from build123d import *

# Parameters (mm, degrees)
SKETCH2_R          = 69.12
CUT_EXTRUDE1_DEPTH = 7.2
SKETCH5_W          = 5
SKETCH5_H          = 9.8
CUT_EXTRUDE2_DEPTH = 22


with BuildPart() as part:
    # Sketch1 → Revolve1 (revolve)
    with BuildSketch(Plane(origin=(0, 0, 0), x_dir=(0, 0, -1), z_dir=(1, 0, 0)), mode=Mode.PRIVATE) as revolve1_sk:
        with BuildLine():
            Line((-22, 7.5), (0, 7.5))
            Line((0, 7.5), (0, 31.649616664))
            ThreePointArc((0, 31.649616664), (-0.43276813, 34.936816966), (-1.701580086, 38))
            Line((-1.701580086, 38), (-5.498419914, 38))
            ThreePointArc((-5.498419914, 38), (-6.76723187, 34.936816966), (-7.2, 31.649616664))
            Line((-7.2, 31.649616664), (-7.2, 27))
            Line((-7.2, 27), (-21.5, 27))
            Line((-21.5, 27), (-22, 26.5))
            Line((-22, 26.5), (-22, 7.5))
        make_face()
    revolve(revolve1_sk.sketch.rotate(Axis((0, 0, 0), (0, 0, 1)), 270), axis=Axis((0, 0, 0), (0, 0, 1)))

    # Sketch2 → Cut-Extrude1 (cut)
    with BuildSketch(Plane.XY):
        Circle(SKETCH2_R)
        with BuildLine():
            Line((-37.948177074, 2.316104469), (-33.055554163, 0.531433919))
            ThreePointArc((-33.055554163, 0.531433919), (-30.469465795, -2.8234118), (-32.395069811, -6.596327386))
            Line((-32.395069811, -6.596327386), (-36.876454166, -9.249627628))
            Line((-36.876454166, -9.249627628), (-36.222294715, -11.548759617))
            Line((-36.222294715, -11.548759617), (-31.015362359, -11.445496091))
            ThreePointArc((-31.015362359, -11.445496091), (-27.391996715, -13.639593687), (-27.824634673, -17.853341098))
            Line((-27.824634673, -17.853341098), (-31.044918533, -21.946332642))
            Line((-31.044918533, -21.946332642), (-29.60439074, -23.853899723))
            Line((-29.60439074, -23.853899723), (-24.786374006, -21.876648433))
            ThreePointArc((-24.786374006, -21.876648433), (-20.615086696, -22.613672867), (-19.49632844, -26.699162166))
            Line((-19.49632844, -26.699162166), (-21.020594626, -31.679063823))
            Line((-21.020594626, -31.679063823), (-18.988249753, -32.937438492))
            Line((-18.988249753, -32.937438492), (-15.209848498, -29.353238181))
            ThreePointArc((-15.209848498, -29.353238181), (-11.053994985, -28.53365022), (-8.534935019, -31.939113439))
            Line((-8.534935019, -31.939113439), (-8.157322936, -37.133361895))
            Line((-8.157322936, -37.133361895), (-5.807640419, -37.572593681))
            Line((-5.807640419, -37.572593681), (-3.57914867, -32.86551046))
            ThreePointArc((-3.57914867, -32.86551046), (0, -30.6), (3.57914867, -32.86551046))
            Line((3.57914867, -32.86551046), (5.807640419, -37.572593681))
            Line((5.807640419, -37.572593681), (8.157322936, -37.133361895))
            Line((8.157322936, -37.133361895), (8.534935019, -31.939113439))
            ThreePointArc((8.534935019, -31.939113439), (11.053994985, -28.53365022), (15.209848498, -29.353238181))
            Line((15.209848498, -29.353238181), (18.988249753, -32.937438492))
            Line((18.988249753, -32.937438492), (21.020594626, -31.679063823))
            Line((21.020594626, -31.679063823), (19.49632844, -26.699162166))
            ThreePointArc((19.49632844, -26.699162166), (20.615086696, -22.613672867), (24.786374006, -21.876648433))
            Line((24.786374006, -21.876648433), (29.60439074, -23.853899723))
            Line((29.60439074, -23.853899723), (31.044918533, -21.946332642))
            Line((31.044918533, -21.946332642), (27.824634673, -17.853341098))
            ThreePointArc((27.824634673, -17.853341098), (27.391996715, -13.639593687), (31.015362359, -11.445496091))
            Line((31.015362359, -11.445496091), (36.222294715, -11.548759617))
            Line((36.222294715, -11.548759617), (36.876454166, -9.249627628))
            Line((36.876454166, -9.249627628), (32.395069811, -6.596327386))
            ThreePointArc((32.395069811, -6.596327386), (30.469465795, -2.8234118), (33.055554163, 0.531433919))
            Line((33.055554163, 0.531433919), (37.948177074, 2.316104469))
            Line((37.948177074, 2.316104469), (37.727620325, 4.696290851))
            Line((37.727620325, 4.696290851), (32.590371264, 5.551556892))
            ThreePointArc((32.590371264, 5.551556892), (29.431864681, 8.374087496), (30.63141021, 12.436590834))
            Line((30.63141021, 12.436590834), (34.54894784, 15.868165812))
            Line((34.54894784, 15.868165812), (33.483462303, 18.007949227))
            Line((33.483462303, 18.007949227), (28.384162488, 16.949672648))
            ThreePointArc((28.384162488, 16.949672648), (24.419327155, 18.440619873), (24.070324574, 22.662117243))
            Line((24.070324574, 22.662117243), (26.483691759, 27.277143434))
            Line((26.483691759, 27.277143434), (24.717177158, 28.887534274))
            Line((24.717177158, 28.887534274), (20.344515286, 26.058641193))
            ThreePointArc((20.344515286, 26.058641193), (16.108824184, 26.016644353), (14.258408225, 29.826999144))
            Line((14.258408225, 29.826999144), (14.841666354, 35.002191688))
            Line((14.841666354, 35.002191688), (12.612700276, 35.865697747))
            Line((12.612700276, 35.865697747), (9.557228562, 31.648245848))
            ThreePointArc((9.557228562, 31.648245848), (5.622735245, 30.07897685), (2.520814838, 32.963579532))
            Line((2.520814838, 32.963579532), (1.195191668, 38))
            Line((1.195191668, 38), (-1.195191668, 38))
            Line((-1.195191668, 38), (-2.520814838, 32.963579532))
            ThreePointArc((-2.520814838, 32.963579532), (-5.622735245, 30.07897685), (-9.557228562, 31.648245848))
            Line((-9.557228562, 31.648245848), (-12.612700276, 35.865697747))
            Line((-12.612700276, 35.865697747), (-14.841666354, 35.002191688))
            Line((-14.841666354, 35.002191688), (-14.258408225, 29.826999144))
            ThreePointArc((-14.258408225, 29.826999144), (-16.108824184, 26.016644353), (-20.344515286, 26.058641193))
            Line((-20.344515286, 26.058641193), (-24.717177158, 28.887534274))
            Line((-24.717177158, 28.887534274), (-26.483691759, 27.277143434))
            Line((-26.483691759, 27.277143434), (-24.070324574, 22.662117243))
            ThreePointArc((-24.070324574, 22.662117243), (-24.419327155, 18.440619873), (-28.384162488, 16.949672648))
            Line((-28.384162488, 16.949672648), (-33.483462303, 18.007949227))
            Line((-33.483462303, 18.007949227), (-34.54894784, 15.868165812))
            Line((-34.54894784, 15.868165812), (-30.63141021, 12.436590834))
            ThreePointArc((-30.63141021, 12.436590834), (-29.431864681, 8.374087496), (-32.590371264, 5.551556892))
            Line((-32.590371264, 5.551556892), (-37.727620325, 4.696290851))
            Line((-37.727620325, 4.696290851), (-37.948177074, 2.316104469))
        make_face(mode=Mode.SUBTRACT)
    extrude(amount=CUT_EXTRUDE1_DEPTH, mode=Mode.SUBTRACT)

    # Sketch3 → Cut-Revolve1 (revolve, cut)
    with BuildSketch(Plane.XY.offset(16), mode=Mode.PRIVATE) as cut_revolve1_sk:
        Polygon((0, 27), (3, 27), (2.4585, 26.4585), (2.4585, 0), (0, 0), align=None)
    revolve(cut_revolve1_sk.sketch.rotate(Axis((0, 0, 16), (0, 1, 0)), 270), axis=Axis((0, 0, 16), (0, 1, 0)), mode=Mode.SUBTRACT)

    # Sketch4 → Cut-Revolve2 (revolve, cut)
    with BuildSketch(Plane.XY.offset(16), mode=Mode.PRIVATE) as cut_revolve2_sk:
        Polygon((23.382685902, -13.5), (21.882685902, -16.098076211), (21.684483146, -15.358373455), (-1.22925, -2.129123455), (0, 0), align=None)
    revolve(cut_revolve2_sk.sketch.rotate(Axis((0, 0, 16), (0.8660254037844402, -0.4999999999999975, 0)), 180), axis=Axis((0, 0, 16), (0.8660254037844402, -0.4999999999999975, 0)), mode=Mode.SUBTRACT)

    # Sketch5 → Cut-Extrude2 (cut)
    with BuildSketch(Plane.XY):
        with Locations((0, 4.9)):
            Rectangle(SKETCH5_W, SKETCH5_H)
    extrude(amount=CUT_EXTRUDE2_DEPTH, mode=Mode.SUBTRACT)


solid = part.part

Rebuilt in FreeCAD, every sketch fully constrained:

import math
import FreeCAD as App
import Part
import Sketcher
from FreeCAD import Vector
Q = App.Units.Quantity

doc = App.newDocument("Part")
params = doc.addObject("Spreadsheet::Sheet", "Params")
for row, (alias, value) in enumerate([
    ("sketch1_width", "19 mm"),
    ("sketch1_height", "22 mm"),
    ("sketch1_height2", "14.3 mm"),
    ("revolution_angle", "360 deg"),
    ("sketch2_diameter", "138.24 mm"),
    ("sketch2_radius", "3.96 mm"),
    ("pocket1_length", "7.2 mm"),
    ("sketch3_width", "3 mm"),
    ("sketch3_height", "27 mm"),
    ("groove_angle", "360 deg"),
    ("sketch4_length", "3 mm"),
    ("sketch4_length2", "27 mm"),
    ("groove2_angle", "360 deg"),
    ("sketch5_width", "5 mm"),
    ("sketch5_height", "9.8 mm"),
    ("pocket2_length", "22 mm"),
], start=1):
    params.set(f"A{row}", alias)
    params.set(f"B{row}", "=" + value)
    params.setAlias(f"B{row}", alias)

body = doc.addObject("PartDesign::Body", "Body")

# Sketch on YZ plane
sketch1 = doc.addObject("Sketcher::SketchObject", "Sketch")
body.addObject(sketch1)
sketch1.AttachmentSupport = (doc.YZ_Plane, [""])
sketch1.MapMode = "FlatFace"
sketch1.addGeometry([
    Part.LineSegment(Vector(7.5, 22, 0), Vector(7.5, 0, 0)),  # 0
    Part.LineSegment(Vector(7.5, 0, 0), Vector(31.6, 0, 0)),  # 1
    Part.ArcOfCircle(Part.Circle(Vector(31.6, 12.7, 0), Vector(0, 0, 1), 12.7), math.radians(-90), math.radians(-60)),  # 2
    Part.LineSegment(Vector(38, 1.7, 0), Vector(38, 5.5, 0)),  # 3
    Part.ArcOfCircle(Part.Circle(Vector(31.6, -5.5, 0), Vector(0, 0, 1), 12.7), math.radians(60), math.radians(90)),  # 4
    Part.LineSegment(Vector(31.6, 7.2, 0), Vector(27, 7.2, 0)),  # 5
    Part.LineSegment(Vector(27, 7.2, 0), Vector(27, 21.5, 0)),  # 6
    Part.LineSegment(Vector(27, 21.5, 0), Vector(26.5, 22, 0)),  # 7
    Part.LineSegment(Vector(26.5, 22, 0), Vector(7.5, 22, 0)),  # 8
], False)
sketch1.addConstraint([
    Sketcher.Constraint("Coincident", 0, 2, 1, 1),
    Sketcher.Constraint("Tangent", 1, 2, 2, 1),
    Sketcher.Constraint("Coincident", 2, 2, 3, 1),
    Sketcher.Constraint("Coincident", 3, 2, 4, 1),
    Sketcher.Constraint("Tangent", 4, 2, 5, 1),
    Sketcher.Constraint("Coincident", 5, 2, 6, 1),
    Sketcher.Constraint("Coincident", 6, 2, 7, 1),
    Sketcher.Constraint("Coincident", 7, 2, 8, 1),
    Sketcher.Constraint("Coincident", 8, 2, 0, 1),
    Sketcher.Constraint("Vertical", 0),
    Sketcher.Constraint("Horizontal", 1),
    Sketcher.Constraint("Vertical", 3),
    Sketcher.Constraint("Horizontal", 5),
    Sketcher.Constraint("Vertical", 6),
    Sketcher.Constraint("Horizontal", 8),
    Sketcher.Constraint("Equal", 2, 4),
    Sketcher.Constraint("PointOnObject", 0, 2, -1),
    Sketcher.Constraint("Vertical", 2, 3, 4, 3),
    Sketcher.Constraint("DistanceX", 8, 2, 8, 1, Q("19 mm")),
    Sketcher.Constraint("DistanceY", 0, 2, 0, 1, Q("22 mm")),
    Sketcher.Constraint("Angle", 7, Q("135 deg")),
    Sketcher.Constraint("DistanceY", 6, 1, 6, 2, Q("14.3 mm")),
    Sketcher.Constraint("DistanceX", -1, 1, 2, 2, Q("38 mm")),
    Sketcher.Constraint("DistanceX", -1, 1, 5, 2, Q("27 mm")),
    Sketcher.Constraint("DistanceX", -1, 1, 0, 2, Q("7.5 mm")),
    Sketcher.Constraint("Radius", 2, Q("12.700767 mm")),
    Sketcher.Constraint("DistanceY", 3, 1, 3, 2, Q("3.79684 mm")),
])
sketch1.setExpression("Constraints[18]", "Params.sketch1_width")
sketch1.setExpression("Constraints[19]", "Params.sketch1_height")
sketch1.setExpression("Constraints[21]", "Params.sketch1_height2")
revolution = doc.addObject("PartDesign::Revolution", "Revolution")
body.addObject(revolution)
revolution.Profile = sketch1
revolution.ReferenceAxis = (sketch1, ["V_Axis"])
revolution.setExpression("Angle", "Params.revolution_angle")

# Sketch on XY plane
sketch2 = doc.addObject("Sketcher::SketchObject", "Sketch001")
body.addObject(sketch2)
sketch2.AttachmentSupport = (doc.XY_Plane, [""])
sketch2.MapMode = "FlatFace"
sketch2.addGeometry([
    Part.Circle(Vector(0, 0, 0), Vector(0, 0, 1), 69.1),  # 0
    Part.LineSegment(Vector(-33.1, 0.5, 0), Vector(-37.9, 2.3, 0)),  # 1
    Part.LineSegment(Vector(-37.9, 2.3, 0), Vector(-37.7, 4.7, 0)),  # 2
    Part.LineSegment(Vector(-37.7, 4.7, 0), Vector(-32.6, 5.6, 0)),  # 3
    Part.ArcOfCircle(Part.Circle(Vector(-33.2, 9.5, 0), Vector(0, 0, 1), 4), math.radians(-81), math.radians(49)),  # 4
    Part.LineSegment(Vector(-30.6, 12.4, 0), Vector(-34.5, 15.9, 0)),  # 5
    Part.LineSegment(Vector(-34.5, 15.9, 0), Vector(-33.5, 18, 0)),  # 6
    Part.LineSegment(Vector(-33.5, 18, 0), Vector(-28.4, 16.9, 0)),  # 7
    Part.ArcOfCircle(Part.Circle(Vector(-27.6, 20.8, 0), Vector(0, 0, 1), 4), math.radians(-102), math.radians(28)),  # 8
    Part.LineSegment(Vector(-24.1, 22.7, 0), Vector(-26.5, 27.3, 0)),  # 9
    Part.LineSegment(Vector(-26.5, 27.3, 0), Vector(-24.7, 28.9, 0)),  # 10
    Part.LineSegment(Vector(-24.7, 28.9, 0), Vector(-20.3, 26.1, 0)),  # 11
    Part.ArcOfCircle(Part.Circle(Vector(-18.2, 29.4, 0), Vector(0, 0, 1), 4), math.radians(-123), math.radians(6)),  # 12
    Part.LineSegment(Vector(-14.3, 29.8, 0), Vector(-14.8, 35, 0)),  # 13
    Part.LineSegment(Vector(-14.8, 35, 0), Vector(-12.6, 35.9, 0)),  # 14
    Part.LineSegment(Vector(-12.6, 35.9, 0), Vector(-9.6, 31.6, 0)),  # 15
    Part.ArcOfCircle(Part.Circle(Vector(-6.4, 34, 0), Vector(0, 0, 1), 4), math.radians(-144), math.radians(-15)),  # 16
    Part.LineSegment(Vector(-2.5, 33, 0), Vector(-1.2, 38, 0)),  # 17
    Part.LineSegment(Vector(-1.2, 38, 0), Vector(1.2, 38, 0)),  # 18
    Part.LineSegment(Vector(1.2, 38, 0), Vector(2.5, 33, 0)),  # 19
    Part.ArcOfCircle(Part.Circle(Vector(6.4, 34, 0), Vector(0, 0, 1), 4), math.radians(-165), math.radians(-36)),  # 20
    Part.LineSegment(Vector(9.6, 31.6, 0), Vector(12.6, 35.9, 0)),  # 21
    Part.LineSegment(Vector(12.6, 35.9, 0), Vector(14.8, 35, 0)),  # 22
    Part.LineSegment(Vector(14.8, 35, 0), Vector(14.3, 29.8, 0)),  # 23
    Part.ArcOfCircle(Part.Circle(Vector(18.2, 29.4, 0), Vector(0, 0, 1), 4), math.radians(174), math.radians(303)),  # 24
    Part.LineSegment(Vector(20.3, 26.1, 0), Vector(24.7, 28.9, 0)),  # 25
    Part.LineSegment(Vector(24.7, 28.9, 0), Vector(26.5, 27.3, 0)),  # 26
    Part.LineSegment(Vector(26.5, 27.3, 0), Vector(24.1, 22.7, 0)),  # 27
    Part.ArcOfCircle(Part.Circle(Vector(27.6, 20.8, 0), Vector(0, 0, 1), 4), math.radians(152), math.radians(282)),  # 28
    Part.LineSegment(Vector(28.4, 16.9, 0), Vector(33.5, 18, 0)),  # 29
    Part.LineSegment(Vector(33.5, 18, 0), Vector(34.5, 15.9, 0)),  # 30
    Part.LineSegment(Vector(34.5, 15.9, 0), Vector(30.6, 12.4, 0)),  # 31
    Part.ArcOfCircle(Part.Circle(Vector(33.2, 9.5, 0), Vector(0, 0, 1), 4), math.radians(131), math.radians(261)),  # 32
    Part.LineSegment(Vector(32.6, 5.6, 0), Vector(37.7, 4.7, 0)),  # 33
    Part.LineSegment(Vector(37.7, 4.7, 0), Vector(37.9, 2.3, 0)),  # 34
    Part.LineSegment(Vector(37.9, 2.3, 0), Vector(33.1, 0.5, 0)),  # 35
    Part.ArcOfCircle(Part.Circle(Vector(34.4, -3.2, 0), Vector(0, 0, 1), 4), math.radians(110), math.radians(239)),  # 36
    Part.LineSegment(Vector(32.4, -6.6, 0), Vector(36.9, -9.2, 0)),  # 37
    Part.LineSegment(Vector(36.9, -9.2, 0), Vector(36.2, -11.5, 0)),  # 38
    Part.LineSegment(Vector(36.2, -11.5, 0), Vector(31, -11.4, 0)),  # 39
    Part.ArcOfCircle(Part.Circle(Vector(30.9, -15.4, 0), Vector(0, 0, 1), 4), math.radians(89), math.radians(218)),  # 40
    Part.LineSegment(Vector(27.8, -17.9, 0), Vector(31, -21.9, 0)),  # 41
    Part.LineSegment(Vector(31, -21.9, 0), Vector(29.6, -23.9, 0)),  # 42
    Part.LineSegment(Vector(29.6, -23.9, 0), Vector(24.8, -21.9, 0)),  # 43
    Part.ArcOfCircle(Part.Circle(Vector(23.3, -25.5, 0), Vector(0, 0, 1), 4), math.radians(68), math.radians(197)),  # 44
    Part.LineSegment(Vector(19.5, -26.7, 0), Vector(21, -31.7, 0)),  # 45
    Part.LineSegment(Vector(21, -31.7, 0), Vector(19, -32.9, 0)),  # 46
    Part.LineSegment(Vector(19, -32.9, 0), Vector(15.2, -29.4, 0)),  # 47
    Part.ArcOfCircle(Part.Circle(Vector(12.5, -32.2, 0), Vector(0, 0, 1), 4), math.radians(47), math.radians(176)),  # 48
    Part.LineSegment(Vector(8.5, -31.9, 0), Vector(8.2, -37.1, 0)),  # 49
    Part.LineSegment(Vector(8.2, -37.1, 0), Vector(5.8, -37.6, 0)),  # 50
    Part.LineSegment(Vector(5.8, -37.6, 0), Vector(3.6, -32.9, 0)),  # 51
    Part.ArcOfCircle(Part.Circle(Vector(0, -34.6, 0), Vector(0, 0, 1), 4), math.radians(25), math.radians(155)),  # 52
    Part.LineSegment(Vector(-3.6, -32.9, 0), Vector(-5.8, -37.6, 0)),  # 53
    Part.LineSegment(Vector(-5.8, -37.6, 0), Vector(-8.2, -37.1, 0)),  # 54
    Part.LineSegment(Vector(-8.2, -37.1, 0), Vector(-8.5, -31.9, 0)),  # 55
    Part.ArcOfCircle(Part.Circle(Vector(-12.5, -32.2, 0), Vector(0, 0, 1), 4), math.radians(4), math.radians(133)),  # 56
    Part.LineSegment(Vector(-15.2, -29.4, 0), Vector(-19, -32.9, 0)),  # 57
    Part.LineSegment(Vector(-19, -32.9, 0), Vector(-21, -31.7, 0)),  # 58
    Part.LineSegment(Vector(-21, -31.7, 0), Vector(-19.5, -26.7, 0)),  # 59
    Part.ArcOfCircle(Part.Circle(Vector(-23.3, -25.5, 0), Vector(0, 0, 1), 4), math.radians(-17), math.radians(112)),  # 60
    Part.LineSegment(Vector(-24.8, -21.9, 0), Vector(-29.6, -23.9, 0)),  # 61
    Part.LineSegment(Vector(-29.6, -23.9, 0), Vector(-31, -21.9, 0)),  # 62
    Part.LineSegment(Vector(-31, -21.9, 0), Vector(-27.8, -17.9, 0)),  # 63
    Part.ArcOfCircle(Part.Circle(Vector(-30.9, -15.4, 0), Vector(0, 0, 1), 4), math.radians(-38), math.radians(91)),  # 64
    Part.LineSegment(Vector(-31, -11.4, 0), Vector(-36.2, -11.5, 0)),  # 65
    Part.LineSegment(Vector(-36.2, -11.5, 0), Vector(-36.9, -9.2, 0)),  # 66
    Part.LineSegment(Vector(-36.9, -9.2, 0), Vector(-32.4, -6.6, 0)),  # 67
    Part.ArcOfCircle(Part.Circle(Vector(-34.4, -3.2, 0), Vector(0, 0, 1), 4), math.radians(-59), math.radians(70)),  # 68
], False)
sketch2.addConstraint([
    Sketcher.Constraint("Coincident", 1, 2, 2, 1),
    Sketcher.Constraint("Coincident", 2, 2, 3, 1),
    Sketcher.Constraint("Tangent", 3, 2, 4, 1),
    Sketcher.Constraint("Tangent", 4, 2, 5, 1),
    Sketcher.Constraint("Coincident", 5, 2, 6, 1),
    Sketcher.Constraint("Coincident", 6, 2, 7, 1),
    Sketcher.Constraint("Tangent", 7, 2, 8, 1),
    Sketcher.Constraint("Tangent", 8, 2, 9, 1),
    Sketcher.Constraint("Coincident", 9, 2, 10, 1),
    Sketcher.Constraint("Coincident", 10, 2, 11, 1),
    Sketcher.Constraint("Tangent", 11, 2, 12, 1),
    Sketcher.Constraint("Tangent", 12, 2, 13, 1),
    Sketcher.Constraint("Coincident", 13, 2, 14, 1),
    Sketcher.Constraint("Coincident", 14, 2, 15, 1),
    Sketcher.Constraint("Tangent", 15, 2, 16, 1),
    Sketcher.Constraint("Tangent", 16, 2, 17, 1),
    Sketcher.Constraint("Coincident", 17, 2, 18, 1),
    Sketcher.Constraint("Coincident", 18, 2, 19, 1),
    Sketcher.Constraint("Tangent", 19, 2, 20, 1),
    Sketcher.Constraint("Tangent", 20, 2, 21, 1),
    Sketcher.Constraint("Coincident", 21, 2, 22, 1),
    Sketcher.Constraint("Coincident", 22, 2, 23, 1),
    Sketcher.Constraint("Tangent", 23, 2, 24, 1),
    Sketcher.Constraint("Tangent", 24, 2, 25, 1),
    Sketcher.Constraint("Coincident", 25, 2, 26, 1),
    Sketcher.Constraint("Coincident", 26, 2, 27, 1),
    Sketcher.Constraint("Tangent", 27, 2, 28, 1),
    Sketcher.Constraint("Tangent", 28, 2, 29, 1),
    Sketcher.Constraint("Coincident", 29, 2, 30, 1),
    Sketcher.Constraint("Coincident", 30, 2, 31, 1),
    Sketcher.Constraint("Tangent", 31, 2, 32, 1),
    Sketcher.Constraint("Tangent", 32, 2, 33, 1),
    Sketcher.Constraint("Coincident", 33, 2, 34, 1),
    Sketcher.Constraint("Coincident", 34, 2, 35, 1),
    Sketcher.Constraint("Tangent", 35, 2, 36, 1),
    Sketcher.Constraint("Tangent", 36, 2, 37, 1),
    Sketcher.Constraint("Coincident", 37, 2, 38, 1),
    Sketcher.Constraint("Coincident", 38, 2, 39, 1),
    Sketcher.Constraint("Tangent", 39, 2, 40, 1),
    Sketcher.Constraint("Tangent", 40, 2, 41, 1),
    Sketcher.Constraint("Coincident", 41, 2, 42, 1),
    Sketcher.Constraint("Coincident", 42, 2, 43, 1),
    Sketcher.Constraint("Tangent", 43, 2, 44, 1),
    Sketcher.Constraint("Tangent", 44, 2, 45, 1),
    Sketcher.Constraint("Coincident", 45, 2, 46, 1),
    Sketcher.Constraint("Coincident", 46, 2, 47, 1),
    Sketcher.Constraint("Tangent", 47, 2, 48, 1),
    Sketcher.Constraint("Tangent", 48, 2, 49, 1),
    Sketcher.Constraint("Coincident", 49, 2, 50, 1),
    Sketcher.Constraint("Coincident", 50, 2, 51, 1),
    Sketcher.Constraint("Tangent", 51, 2, 52, 1),
    Sketcher.Constraint("Tangent", 52, 2, 53, 1),
    Sketcher.Constraint("Coincident", 53, 2, 54, 1),
    Sketcher.Constraint("Coincident", 54, 2, 55, 1),
    Sketcher.Constraint("Tangent", 55, 2, 56, 1),
    Sketcher.Constraint("Tangent", 56, 2, 57, 1),
    Sketcher.Constraint("Coincident", 57, 2, 58, 1),
    Sketcher.Constraint("Coincident", 58, 2, 59, 1),
    Sketcher.Constraint("Tangent", 59, 2, 60, 1),
    Sketcher.Constraint("Tangent", 60, 2, 61, 1),
    Sketcher.Constraint("Coincident", 61, 2, 62, 1),
    Sketcher.Constraint("Coincident", 62, 2, 63, 1),
    Sketcher.Constraint("Tangent", 63, 2, 64, 1),
    Sketcher.Constraint("Tangent", 64, 2, 65, 1),
    Sketcher.Constraint("Coincident", 65, 2, 66, 1),
    Sketcher.Constraint("Coincident", 66, 2, 67, 1),
    Sketcher.Constraint("Tangent", 67, 2, 68, 1),
    Sketcher.Constraint("Tangent", 68, 2, 1, 1),
    Sketcher.Constraint("Horizontal", 18),
    Sketcher.Constraint("Coincident", 0, 3, -1, 1),
    Sketcher.Constraint("Equal", 4, 8),
    Sketcher.Constraint("Equal", 8, 12),
    Sketcher.Constraint("Equal", 12, 16),
    Sketcher.Constraint("Equal", 16, 20),
    Sketcher.Constraint("Equal", 20, 24),
    Sketcher.Constraint("Equal", 24, 28),
    Sketcher.Constraint("Equal", 28, 32),
    Sketcher.Constraint("Equal", 32, 36),
    Sketcher.Constraint("Equal", 36, 40),
    Sketcher.Constraint("Equal", 40, 44),
    Sketcher.Constraint("Equal", 44, 48),
    Sketcher.Constraint("Equal", 48, 52),
    Sketcher.Constraint("Equal", 52, 56),
    Sketcher.Constraint("Equal", 56, 60),
    Sketcher.Constraint("Equal", 60, 64),
    Sketcher.Constraint("Equal", 64, 68),
    Sketcher.Constraint("Symmetric", 16, 3, 20, 3, -2),
    Sketcher.Constraint("Symmetric", 12, 3, 24, 3, -2),
    Sketcher.Constraint("Symmetric", 8, 3, 28, 3, -2),
    Sketcher.Constraint("Symmetric", 4, 3, 32, 3, -2),
    Sketcher.Constraint("Symmetric", 48, 3, 56, 3, -2),
    Sketcher.Constraint("Symmetric", 44, 3, 60, 3, -2),
    Sketcher.Constraint("Symmetric", 40, 3, 64, 3, -2),
    Sketcher.Constraint("Symmetric", 36, 3, 68, 3, -2),
    Sketcher.Constraint("Symmetric", 14, 2, 21, 2, -2),
    Sketcher.Constraint("Symmetric", 13, 2, 22, 2, -2),
    Sketcher.Constraint("Symmetric", 10, 2, 25, 2, -2),
    Sketcher.Constraint("Symmetric", 9, 2, 26, 2, -2),
    Sketcher.Constraint("Symmetric", 6, 2, 29, 2, -2),
    Sketcher.Constraint("Symmetric", 5, 2, 30, 2, -2),
    Sketcher.Constraint("Symmetric", 2, 2, 33, 2, -2),
    Sketcher.Constraint("Symmetric", 1, 2, 34, 2, -2),
    Sketcher.Constraint("Symmetric", 51, 2, 52, 2, -2),
    Sketcher.Constraint("Symmetric", 49, 2, 54, 2, -2),
    Sketcher.Constraint("Symmetric", 46, 2, 57, 2, -2),
    Sketcher.Constraint("Symmetric", 45, 2, 58, 2, -2),
    Sketcher.Constraint("Symmetric", 42, 2, 61, 2, -2),
    Sketcher.Constraint("Symmetric", 41, 2, 62, 2, -2),
    Sketcher.Constraint("Symmetric", 38, 2, 65, 2, -2),
    Sketcher.Constraint("Symmetric", 37, 2, 66, 2, -2),
    Sketcher.Constraint("Horizontal", 16, 2, 19, 2),
    Sketcher.Constraint("Horizontal", 50, 2, 53, 2),
    Sketcher.Constraint("Equal", 1, 3),
    Sketcher.Constraint("Equal", 3, 5),
    Sketcher.Constraint("Equal", 2, 6),
    Sketcher.Constraint("Equal", 5, 7),
    Sketcher.Constraint("Equal", 7, 9),
    Sketcher.Constraint("Equal", 6, 10),
    Sketcher.Constraint("Equal", 9, 11),
    Sketcher.Constraint("Equal", 11, 13),
    Sketcher.Constraint("Equal", 10, 14),
    Sketcher.Constraint("Equal", 13, 15),
    Sketcher.Constraint("Equal", 15, 17),
    Sketcher.Constraint("Equal", 35, 37),
    Sketcher.Constraint("Equal", 34, 38),
    Sketcher.Constraint("Equal", 37, 39),
    Sketcher.Constraint("Equal", 39, 41),
    Sketcher.Constraint("Equal", 38, 42),
    Sketcher.Constraint("Equal", 41, 43),
    Sketcher.Constraint("Equal", 43, 45),
    Sketcher.Constraint("Equal", 42, 46),
    Sketcher.Constraint("Equal", 45, 47),
    Sketcher.Constraint("Equal", 47, 49),
    Sketcher.Constraint("Equal", 46, 50),
    Sketcher.Constraint("Equal", 49, 51),
    Sketcher.Constraint("Diameter", 0, Q("138.24 mm")),
    Sketcher.Constraint("Radius", 4, Q("3.96 mm")),
    Sketcher.Constraint("DistanceY", -1, 1, 17, 2, Q("38 mm")),
    Sketcher.Constraint("DistanceY", 52, 3, -1, 1, Q("34.56 mm")),
    Sketcher.Constraint("DistanceY", -1, 1, 12, 2, Q("29.826999 mm")),
    Sketcher.Constraint("DistanceX", 14, 2, -1, 1, Q("12.6127 mm")),
    Sketcher.Constraint("DistanceY", 42, 2, -1, 1, Q("23.8539 mm")),
    Sketcher.Constraint("DistanceX", 18, 1, 18, 2, Q("2.390383 mm")),
    Sketcher.Constraint("DistanceY", -1, 1, 16, 3, Q("33.97155 mm")),
    Sketcher.Constraint("DistanceX", -1, 1, 44, 3, Q("23.282921 mm")),
    Sketcher.Constraint("DistanceY", 44, 3, -1, 1, Q("25.540148 mm")),
    Sketcher.Constraint("DistanceX", -1, 1, 48, 3, Q("12.484512 mm")),
    Sketcher.Constraint("DistanceY", 48, 3, -1, 1, Q("32.22624 mm")),
    Sketcher.Constraint("DistanceX", 2, 2, -1, 1, Q("37.72762 mm")),
    Sketcher.Constraint("DistanceY", -1, 1, 2, 2, Q("4.696291 mm")),
    Sketcher.Constraint("DistanceX", 3, 2, -1, 1, Q("32.590371 mm")),
    Sketcher.Constraint("DistanceX", 4, 2, -1, 1, Q("30.63141 mm")),
    Sketcher.Constraint("DistanceY", -1, 1, 4, 2, Q("12.436591 mm")),
    Sketcher.Constraint("DistanceY", -1, 1, 6, 2, Q("18.007949 mm")),
    Sketcher.Constraint("DistanceX", 9, 2, -1, 1, Q("26.483692 mm")),
    Sketcher.Constraint("DistanceY", -1, 1, 11, 2, Q("26.058641 mm")),
    Sketcher.Constraint("DistanceX", 12, 2, -1, 1, Q("14.258408 mm")),
    Sketcher.Constraint("DistanceY", -1, 1, 13, 2, Q("35.002192 mm")),
    Sketcher.Constraint("DistanceX", -1, 1, 36, 2, Q("32.39507 mm")),
    Sketcher.Constraint("DistanceY", 38, 2, -1, 1, Q("11.54876 mm")),
    Sketcher.Constraint("DistanceY", 40, 2, -1, 1, Q("17.853341 mm")),
    Sketcher.Constraint("DistanceX", -1, 1, 41, 2, Q("31.044919 mm")),
    Sketcher.Constraint("DistanceX", -1, 1, 44, 2, Q("19.496328 mm")),
    Sketcher.Constraint("DistanceY", 49, 2, -1, 1, Q("37.133362 mm")),
    Sketcher.Constraint("DistanceX", -1, 1, 36, 3, Q("34.412573 mm")),
])
sketch2.setExpression("Constraints[135]", "Params.sketch2_diameter")
sketch2.setExpression("Constraints[136]", "Params.sketch2_radius")
pocket1 = doc.addObject("PartDesign::Pocket", "Pocket")
body.addObject(pocket1)
pocket1.Profile = sketch2
pocket1.setExpression("Length", "Params.pocket1_length")
pocket1.Reversed = True

# Sketch on XY plane
sketch3 = doc.addObject("Sketcher::SketchObject", "Sketch002")
body.addObject(sketch3)
sketch3.AttachmentSupport = (doc.XY_Plane, [""])
sketch3.MapMode = "FlatFace"
sketch3.AttachmentOffset = App.Placement(Vector(0, 0, 16), App.Rotation())
sketch3.addGeometry([
    Part.LineSegment(Vector(3, 27, 0), Vector(0, 27, 0)),  # 0
    Part.LineSegment(Vector(0, 27, 0), Vector(0, 0, 0)),  # 1
    Part.LineSegment(Vector(0, 0, 0), Vector(2.5, 0, 0)),  # 2
    Part.LineSegment(Vector(2.5, 0, 0), Vector(2.5, 26.5, 0)),  # 3
    Part.LineSegment(Vector(2.5, 26.5, 0), Vector(3, 27, 0)),  # 4
], False)
sketch3.addConstraint([
    Sketcher.Constraint("Coincident", 0, 2, 1, 1),
    Sketcher.Constraint("Coincident", 1, 2, 2, 1),
    Sketcher.Constraint("Coincident", 2, 2, 3, 1),
    Sketcher.Constraint("Coincident", 3, 2, 4, 1),
    Sketcher.Constraint("Coincident", 4, 2, 0, 1),
    Sketcher.Constraint("Horizontal", 0),
    Sketcher.Constraint("Vertical", 1),
    Sketcher.Constraint("Horizontal", 2),
    Sketcher.Constraint("Vertical", 3),
    Sketcher.Constraint("Coincident", 1, 2, -1, 1),
    Sketcher.Constraint("DistanceX", 0, 2, 0, 1, Q("3 mm")),
    Sketcher.Constraint("DistanceY", 1, 2, 1, 1, Q("27 mm")),
    Sketcher.Constraint("Angle", 4, Q("45 deg")),
    Sketcher.Constraint("DistanceX", 2, 1, 2, 2, Q("2.4585 mm")),
])
sketch3.setExpression("Constraints[10]", "Params.sketch3_width")
sketch3.setExpression("Constraints[11]", "Params.sketch3_height")
groove = doc.addObject("PartDesign::Groove", "Groove")
body.addObject(groove)
groove.Profile = sketch3
groove.ReferenceAxis = (sketch3, ["V_Axis"])
groove.setExpression("Angle", "Params.groove_angle")

# Sketch on XY plane
sketch4 = doc.addObject("Sketcher::SketchObject", "Sketch003")
body.addObject(sketch4)
sketch4.AttachmentSupport = (doc.XY_Plane, [""])
sketch4.MapMode = "FlatFace"
sketch4.AttachmentOffset = App.Placement(Vector(0, 0, 16), App.Rotation())
sketch4.addGeometry([
    Part.LineSegment(Vector(21.9, -16.1, 0), Vector(23.4, -13.5, 0)),  # 0
    Part.LineSegment(Vector(23.4, -13.5, 0), Vector(0, 0, 0)),  # 1
    Part.LineSegment(Vector(0, 0, 0), Vector(-1.2, -2.1, 0)),  # 2
    Part.LineSegment(Vector(-1.2, -2.1, 0), Vector(21.7, -15.4, 0)),  # 3
    Part.LineSegment(Vector(21.7, -15.4, 0), Vector(21.9, -16.1, 0)),  # 4
], False)
sketch4.addGeometry(Part.LineSegment(Vector(0, 0, 0), Vector(23.4, -13.5, 0)), True)  # axis
sketch4.addConstraint([
    Sketcher.Constraint("Coincident", 0, 2, 1, 1),
    Sketcher.Constraint("Coincident", 1, 2, 2, 1),
    Sketcher.Constraint("Coincident", 2, 2, 3, 1),
    Sketcher.Constraint("Coincident", 3, 2, 4, 1),
    Sketcher.Constraint("Coincident", 4, 2, 0, 1),
    Sketcher.Constraint("Coincident", 1, 2, -1, 1),
    Sketcher.Constraint("Coincident", 5, 1, -1, 1),
    Sketcher.Constraint("Coincident", 5, 2, 0, 2),
    Sketcher.Constraint("Perpendicular", 0, 1),
    Sketcher.Constraint("Perpendicular", 1, 2),
    Sketcher.Constraint("Perpendicular", 2, 3),
    Sketcher.Constraint("Angle", 0, Q("60 deg")),
    Sketcher.Constraint("Angle", 4, Q("-75 deg")),
    Sketcher.Constraint("Distance", 0, Q("3 mm")),
    Sketcher.Constraint("Distance", 1, Q("27 mm")),
    Sketcher.Constraint("Distance", 2, Q("2.4585 mm")),
])
sketch4.setExpression("Constraints[13]", "Params.sketch4_length")
sketch4.setExpression("Constraints[14]", "Params.sketch4_length2")
groove2 = doc.addObject("PartDesign::Groove", "Groove001")
body.addObject(groove2)
groove2.Profile = sketch4
groove2.ReferenceAxis = (sketch4, ["Axis0"])
groove2.setExpression("Angle", "Params.groove2_angle")

# Sketch on XY plane
sketch5 = doc.addObject("Sketcher::SketchObject", "Sketch004")
body.addObject(sketch5)
sketch5.AttachmentSupport = (doc.XY_Plane, [""])
sketch5.MapMode = "FlatFace"
sketch5.addGeometry([
    Part.LineSegment(Vector(-2, 10, 0), Vector(-2, 0, 0)),
    Part.LineSegment(Vector(-2, 0, 0), Vector(2, 0, 0)),
    Part.LineSegment(Vector(2, 0, 0), Vector(2, 10, 0)),
    Part.LineSegment(Vector(2, 10, 0), Vector(-2, 10, 0)),
], False)
sketch5.addConstraint([
    Sketcher.Constraint("Coincident", 0, 2, 1, 1),
    Sketcher.Constraint("Coincident", 1, 2, 2, 1),
    Sketcher.Constraint("Coincident", 2, 2, 3, 1),
    Sketcher.Constraint("Coincident", 3, 2, 0, 1),
    Sketcher.Constraint("Vertical", 0),
    Sketcher.Constraint("Horizontal", 1),
    Sketcher.Constraint("Vertical", 2),
    Sketcher.Constraint("Horizontal", 3),
    Sketcher.Constraint("Symmetric", 0, 2, 1, 2, -1, 1),
    Sketcher.Constraint("DistanceX", 1, 1, 1, 2, Q("5 mm")),
    Sketcher.Constraint("DistanceY", 0, 2, 0, 1, Q("9.8 mm")),
])
sketch5.setExpression("Constraints[9]", "Params.sketch5_width")
sketch5.setExpression("Constraints[10]", "Params.sketch5_height")
pocket2 = doc.addObject("PartDesign::Pocket", "Pocket001")
body.addObject(pocket2)
pocket2.Profile = sketch5
pocket2.setExpression("Length", "Params.pocket2_length")
pocket2.Reversed = True

doc.recompute()
